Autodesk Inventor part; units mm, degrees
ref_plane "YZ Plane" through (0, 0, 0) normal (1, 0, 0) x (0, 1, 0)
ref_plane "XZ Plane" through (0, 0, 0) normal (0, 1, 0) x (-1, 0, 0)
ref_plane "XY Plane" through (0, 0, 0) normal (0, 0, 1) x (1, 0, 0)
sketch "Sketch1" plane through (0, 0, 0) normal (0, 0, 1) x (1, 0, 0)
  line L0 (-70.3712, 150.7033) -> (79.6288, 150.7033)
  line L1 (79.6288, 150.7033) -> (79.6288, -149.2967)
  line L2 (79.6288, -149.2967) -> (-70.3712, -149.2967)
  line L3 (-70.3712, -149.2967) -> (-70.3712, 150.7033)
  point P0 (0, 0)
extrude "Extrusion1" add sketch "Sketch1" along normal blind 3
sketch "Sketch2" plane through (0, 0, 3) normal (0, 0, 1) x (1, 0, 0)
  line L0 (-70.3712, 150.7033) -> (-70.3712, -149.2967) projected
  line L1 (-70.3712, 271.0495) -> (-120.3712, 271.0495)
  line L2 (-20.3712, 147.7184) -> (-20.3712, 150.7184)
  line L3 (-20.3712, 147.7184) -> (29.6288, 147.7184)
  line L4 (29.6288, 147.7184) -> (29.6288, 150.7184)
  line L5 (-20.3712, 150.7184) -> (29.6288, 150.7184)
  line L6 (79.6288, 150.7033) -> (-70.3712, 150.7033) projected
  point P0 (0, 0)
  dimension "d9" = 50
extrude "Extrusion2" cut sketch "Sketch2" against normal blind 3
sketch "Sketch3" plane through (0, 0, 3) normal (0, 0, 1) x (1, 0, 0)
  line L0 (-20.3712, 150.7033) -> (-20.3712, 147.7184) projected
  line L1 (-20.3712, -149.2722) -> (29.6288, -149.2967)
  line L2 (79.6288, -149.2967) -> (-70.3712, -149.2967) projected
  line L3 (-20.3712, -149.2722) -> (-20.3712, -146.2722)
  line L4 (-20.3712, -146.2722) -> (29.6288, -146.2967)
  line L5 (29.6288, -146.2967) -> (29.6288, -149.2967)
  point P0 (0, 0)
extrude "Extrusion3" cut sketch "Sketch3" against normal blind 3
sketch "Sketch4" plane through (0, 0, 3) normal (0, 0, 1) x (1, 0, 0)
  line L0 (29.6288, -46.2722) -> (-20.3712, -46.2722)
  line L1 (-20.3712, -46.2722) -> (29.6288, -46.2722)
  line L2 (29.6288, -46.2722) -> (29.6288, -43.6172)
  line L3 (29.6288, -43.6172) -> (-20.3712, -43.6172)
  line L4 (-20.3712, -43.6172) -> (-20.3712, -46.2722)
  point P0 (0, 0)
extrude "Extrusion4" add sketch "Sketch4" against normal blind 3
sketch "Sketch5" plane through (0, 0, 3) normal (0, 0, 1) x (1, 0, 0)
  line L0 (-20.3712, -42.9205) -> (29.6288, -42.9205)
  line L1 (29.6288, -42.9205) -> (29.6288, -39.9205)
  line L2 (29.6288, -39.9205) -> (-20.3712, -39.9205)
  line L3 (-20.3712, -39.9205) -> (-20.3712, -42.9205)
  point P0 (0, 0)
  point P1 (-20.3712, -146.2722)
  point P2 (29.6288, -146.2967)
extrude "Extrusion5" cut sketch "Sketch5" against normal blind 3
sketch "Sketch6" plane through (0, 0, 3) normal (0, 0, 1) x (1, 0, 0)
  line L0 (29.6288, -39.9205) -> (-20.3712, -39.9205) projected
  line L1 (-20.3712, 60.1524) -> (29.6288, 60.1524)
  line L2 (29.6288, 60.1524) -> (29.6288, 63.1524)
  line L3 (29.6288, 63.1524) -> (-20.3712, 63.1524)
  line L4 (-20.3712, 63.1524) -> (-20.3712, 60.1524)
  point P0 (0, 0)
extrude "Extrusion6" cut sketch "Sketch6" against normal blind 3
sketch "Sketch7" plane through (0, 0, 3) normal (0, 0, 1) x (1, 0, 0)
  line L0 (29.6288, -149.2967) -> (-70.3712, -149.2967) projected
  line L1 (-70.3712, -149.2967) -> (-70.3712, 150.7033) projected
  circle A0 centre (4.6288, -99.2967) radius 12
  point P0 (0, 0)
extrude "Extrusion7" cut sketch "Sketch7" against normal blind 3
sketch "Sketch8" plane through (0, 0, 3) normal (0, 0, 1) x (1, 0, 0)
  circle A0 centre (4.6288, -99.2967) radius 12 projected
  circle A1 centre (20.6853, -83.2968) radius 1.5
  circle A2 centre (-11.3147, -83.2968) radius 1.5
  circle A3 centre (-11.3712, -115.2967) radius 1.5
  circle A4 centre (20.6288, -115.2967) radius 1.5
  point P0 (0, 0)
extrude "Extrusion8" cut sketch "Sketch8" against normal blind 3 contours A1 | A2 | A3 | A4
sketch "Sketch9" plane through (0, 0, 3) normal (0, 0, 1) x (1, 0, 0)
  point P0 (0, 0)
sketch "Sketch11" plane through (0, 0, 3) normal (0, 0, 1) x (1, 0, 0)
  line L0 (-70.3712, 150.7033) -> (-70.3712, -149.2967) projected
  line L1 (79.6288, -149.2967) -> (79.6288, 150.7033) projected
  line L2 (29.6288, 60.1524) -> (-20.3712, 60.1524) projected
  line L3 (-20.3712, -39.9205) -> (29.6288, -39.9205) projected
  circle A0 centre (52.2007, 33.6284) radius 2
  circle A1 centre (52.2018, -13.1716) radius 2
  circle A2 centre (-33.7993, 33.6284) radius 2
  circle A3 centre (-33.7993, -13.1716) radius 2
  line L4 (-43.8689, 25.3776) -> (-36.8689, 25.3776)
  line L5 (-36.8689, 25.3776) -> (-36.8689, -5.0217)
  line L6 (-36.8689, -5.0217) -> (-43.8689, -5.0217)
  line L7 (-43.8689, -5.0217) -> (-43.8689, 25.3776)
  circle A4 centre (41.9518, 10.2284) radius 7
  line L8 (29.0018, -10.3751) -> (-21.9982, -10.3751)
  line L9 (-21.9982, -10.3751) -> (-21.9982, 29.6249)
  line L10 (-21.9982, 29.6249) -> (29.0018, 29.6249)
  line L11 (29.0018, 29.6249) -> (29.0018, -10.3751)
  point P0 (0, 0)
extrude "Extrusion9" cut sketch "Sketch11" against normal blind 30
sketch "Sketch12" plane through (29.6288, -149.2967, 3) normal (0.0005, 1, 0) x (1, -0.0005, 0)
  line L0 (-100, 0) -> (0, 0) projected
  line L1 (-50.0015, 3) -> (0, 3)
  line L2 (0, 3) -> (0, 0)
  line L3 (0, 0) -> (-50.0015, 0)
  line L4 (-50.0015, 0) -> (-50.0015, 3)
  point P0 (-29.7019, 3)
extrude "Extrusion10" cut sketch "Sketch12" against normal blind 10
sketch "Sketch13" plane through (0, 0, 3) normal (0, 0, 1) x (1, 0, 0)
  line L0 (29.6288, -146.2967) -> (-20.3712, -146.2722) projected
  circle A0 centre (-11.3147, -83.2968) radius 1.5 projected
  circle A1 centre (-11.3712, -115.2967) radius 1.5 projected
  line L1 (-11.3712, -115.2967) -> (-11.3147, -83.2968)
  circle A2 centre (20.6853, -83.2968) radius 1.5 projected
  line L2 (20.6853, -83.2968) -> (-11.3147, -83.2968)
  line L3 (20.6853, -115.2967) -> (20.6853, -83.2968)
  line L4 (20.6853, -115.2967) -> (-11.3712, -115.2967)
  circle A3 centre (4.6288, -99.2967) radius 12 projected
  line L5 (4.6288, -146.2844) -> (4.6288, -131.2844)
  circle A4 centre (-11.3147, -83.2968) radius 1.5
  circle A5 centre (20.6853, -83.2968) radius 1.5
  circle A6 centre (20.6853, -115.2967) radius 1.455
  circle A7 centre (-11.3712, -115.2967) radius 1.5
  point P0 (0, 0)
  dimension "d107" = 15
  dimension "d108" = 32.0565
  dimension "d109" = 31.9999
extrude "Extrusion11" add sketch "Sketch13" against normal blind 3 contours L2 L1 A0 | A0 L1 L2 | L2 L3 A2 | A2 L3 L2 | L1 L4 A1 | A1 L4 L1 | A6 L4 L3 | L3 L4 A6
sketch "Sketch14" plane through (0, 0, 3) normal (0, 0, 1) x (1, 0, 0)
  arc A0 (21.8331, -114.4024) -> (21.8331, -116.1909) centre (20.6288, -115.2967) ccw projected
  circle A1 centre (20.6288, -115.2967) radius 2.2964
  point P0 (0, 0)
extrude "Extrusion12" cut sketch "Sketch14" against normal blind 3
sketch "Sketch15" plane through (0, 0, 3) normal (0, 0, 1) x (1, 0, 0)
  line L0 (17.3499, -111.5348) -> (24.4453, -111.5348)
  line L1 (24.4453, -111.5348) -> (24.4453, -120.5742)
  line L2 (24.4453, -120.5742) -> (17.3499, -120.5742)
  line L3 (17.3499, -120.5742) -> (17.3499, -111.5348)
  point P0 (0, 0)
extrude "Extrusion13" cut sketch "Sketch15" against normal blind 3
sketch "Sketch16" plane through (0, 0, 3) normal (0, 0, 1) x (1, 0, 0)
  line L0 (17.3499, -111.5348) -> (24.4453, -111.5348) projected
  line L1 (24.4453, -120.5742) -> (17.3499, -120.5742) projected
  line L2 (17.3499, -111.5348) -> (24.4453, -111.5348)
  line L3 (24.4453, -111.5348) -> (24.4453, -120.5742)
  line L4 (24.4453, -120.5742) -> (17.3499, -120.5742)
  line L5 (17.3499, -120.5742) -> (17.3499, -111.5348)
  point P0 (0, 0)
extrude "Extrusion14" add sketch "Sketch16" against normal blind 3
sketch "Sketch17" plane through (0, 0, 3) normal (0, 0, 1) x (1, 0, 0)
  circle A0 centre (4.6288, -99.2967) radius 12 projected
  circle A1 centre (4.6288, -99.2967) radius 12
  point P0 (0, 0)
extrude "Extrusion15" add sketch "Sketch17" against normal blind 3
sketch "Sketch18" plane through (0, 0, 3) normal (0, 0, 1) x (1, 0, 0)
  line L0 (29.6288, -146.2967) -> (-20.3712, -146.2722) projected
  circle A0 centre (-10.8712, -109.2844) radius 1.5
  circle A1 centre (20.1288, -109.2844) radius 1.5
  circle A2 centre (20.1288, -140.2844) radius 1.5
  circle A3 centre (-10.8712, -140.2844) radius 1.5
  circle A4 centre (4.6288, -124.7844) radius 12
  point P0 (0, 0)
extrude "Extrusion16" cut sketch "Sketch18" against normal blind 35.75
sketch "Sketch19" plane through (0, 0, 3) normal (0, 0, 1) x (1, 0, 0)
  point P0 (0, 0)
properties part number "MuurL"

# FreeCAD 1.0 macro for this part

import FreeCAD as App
import Part
import Sketcher
Q = App.Units.Quantity


def add_polygon(sketch, points):
    """Adds a closed chain of lines whose ends are joined by coincident constraints."""
    first, n = sketch.GeometryCount, len(points)
    for a, b in zip(points, points[1:] + points[:1]):
        sketch.addGeometry(Part.LineSegment(App.Vector(*a, 0), App.Vector(*b, 0)), False)
    for i in range(n):
        sketch.addConstraint(Sketcher.Constraint("Coincident", first + i, 2, first + (i + 1) % n, 1))

doc = App.newDocument("Part")
body = doc.addObject("PartDesign::Body", "Body")

# Sketch on XY plane
sketch1 = body.newObject("Sketcher::SketchObject", "Sketch")
sketch1.AttachmentSupport = (doc.getObject("XY_Plane"), [""])
sketch1.MapMode = "FlatFace"
add_polygon(sketch1, [(80, 151), (-70, 151), (-70, -149), (80, -149)])  # lines 0-3
sketch1.addConstraint([
    Sketcher.Constraint("Horizontal", 0),
    Sketcher.Constraint("Vertical", 1),
    Sketcher.Constraint("Horizontal", 2),
    Sketcher.Constraint("Vertical", 3),
    Sketcher.Constraint("DistanceX", 0, 2, 0, 1, Q("150 mm")),
    Sketcher.Constraint("DistanceY", 1, 2, 1, 1, Q("300 mm")),
    Sketcher.Constraint("DistanceX", 0, 2, -1, 1, Q("70.3712 mm")),
    Sketcher.Constraint("DistanceY", -1, 1, 0, 2, Q("150.7033 mm")),
])
pad1 = body.newObject("PartDesign::Pad", "Pad")
pad1.Profile = sketch1
pad1.Length = 3

# Sketch on XY plane
sketch2 = body.newObject("Sketcher::SketchObject", "Sketch001")
sketch2.AttachmentSupport = (doc.getObject("XY_Plane"), [""])
sketch2.MapMode = "FlatFace"
sketch2.AttachmentOffset = App.Placement(App.Vector(0, 0, 3), App.Rotation())
add_polygon(sketch2, [(-20.4, 147.7), (29.6, 147.7), (29.6, 150.7), (-20.4, 150.7)])  # lines 0-3
sketch2.addConstraint([
    Sketcher.Constraint("Horizontal", 0),
    Sketcher.Constraint("Vertical", 1),
    Sketcher.Constraint("Horizontal", 2),
    Sketcher.Constraint("Vertical", 3),
    Sketcher.Constraint("DistanceX", 0, 1, 0, 2, Q("50 mm")),
    Sketcher.Constraint("DistanceY", 1, 1, 1, 2, Q("3 mm")),
    Sketcher.Constraint("DistanceX", -1, 1, 0, 2, Q("29.6288 mm")),
    Sketcher.Constraint("DistanceY", -1, 1, 0, 2, Q("147.7184 mm")),
])
pocket1 = body.newObject("PartDesign::Pocket", "Pocket")
pocket1.Profile = sketch2
pocket1.Length = 3

# Sketch on XY plane
sketch3 = body.newObject("Sketcher::SketchObject", "Sketch002")
sketch3.AttachmentSupport = (doc.getObject("XY_Plane"), [""])
sketch3.MapMode = "FlatFace"
sketch3.AttachmentOffset = App.Placement(App.Vector(0, 0, 3), App.Rotation())
add_polygon(sketch3, [(-20.4, -146.3), (-20.4, -149.3), (29.6, -149.3), (29.6, -146.3)])  # lines 0-3
sketch3.addConstraint([
    Sketcher.Constraint("Vertical", 0),
    Sketcher.Constraint("Vertical", 2),
    Sketcher.Constraint("Parallel", 1, 3),
    Sketcher.Constraint("DistanceY", 0, 2, 0, 1, Q("3 mm")),
    Sketcher.Constraint("Distance", 1, Q("50 mm")),
    Sketcher.Constraint("DistanceX", 0, 2, -1, 1, Q("20.3712 mm")),
    Sketcher.Constraint("DistanceY", 0, 2, -1, 1, Q("149.2722 mm")),
    Sketcher.Constraint("DistanceY", 1, 2, -1, 1, Q("149.2967 mm")),
])
pocket2 = body.newObject("PartDesign::Pocket", "Pocket001")
pocket2.Profile = sketch3
pocket2.Length = 3

# Sketch on XY plane
sketch4 = body.newObject("Sketcher::SketchObject", "Sketch003")
sketch4.AttachmentSupport = (doc.getObject("XY_Plane"), [""])
sketch4.MapMode = "FlatFace"
sketch4.AttachmentOffset = App.Placement(App.Vector(0, 0, 3), App.Rotation())
add_polygon(sketch4, [(-20.4, -46.3), (29.6, -46.3), (29.6, -43.6), (-20.4, -43.6)])  # lines 0-3
sketch4.addConstraint([
    Sketcher.Constraint("Horizontal", 0),
    Sketcher.Constraint("Vertical", 1),
    Sketcher.Constraint("Horizontal", 2),
    Sketcher.Constraint("Vertical", 3),
    Sketcher.Constraint("DistanceX", 0, 1, 0, 2, Q("50 mm")),
    Sketcher.Constraint("DistanceY", 1, 1, 1, 2, Q("2.655 mm")),
    Sketcher.Constraint("DistanceX", -1, 1, 0, 2, Q("29.6288 mm")),
    Sketcher.Constraint("DistanceY", 0, 2, -1, 1, Q("46.2722 mm")),
])
pad2 = body.newObject("PartDesign::Pad", "Pad001")
pad2.Profile = sketch4
pad2.Length = 3
pad2.Reversed = True

# Sketch on XY plane
sketch5 = body.newObject("Sketcher::SketchObject", "Sketch004")
sketch5.AttachmentSupport = (doc.getObject("XY_Plane"), [""])
sketch5.MapMode = "FlatFace"
sketch5.AttachmentOffset = App.Placement(App.Vector(0, 0, 3), App.Rotation())
add_polygon(sketch5, [(-20.4, -39.9), (-20.4, -42.9), (29.6, -42.9), (29.6, -39.9)])  # lines 0-3
sketch5.addConstraint([
    Sketcher.Constraint("Vertical", 0),
    Sketcher.Constraint("Horizontal", 1),
    Sketcher.Constraint("Vertical", 2),
    Sketcher.Constraint("Horizontal", 3),
    Sketcher.Constraint("DistanceX", 1, 1, 1, 2, Q("50 mm")),
    Sketcher.Constraint("DistanceY", 0, 2, 0, 1, Q("3 mm")),
    Sketcher.Constraint("DistanceX", 0, 2, -1, 1, Q("20.3712 mm")),
    Sketcher.Constraint("DistanceY", 0, 2, -1, 1, Q("42.9205 mm")),
])
pocket3 = body.newObject("PartDesign::Pocket", "Pocket002")
pocket3.Profile = sketch5
pocket3.Length = 3

# Sketch on XY plane
sketch6 = body.newObject("Sketcher::SketchObject", "Sketch005")
sketch6.AttachmentSupport = (doc.getObject("XY_Plane"), [""])
sketch6.MapMode = "FlatFace"
sketch6.AttachmentOffset = App.Placement(App.Vector(0, 0, 3), App.Rotation())
add_polygon(sketch6, [(-20.4, 63.2), (-20.4, 60.2), (29.6, 60.2), (29.6, 63.2)])  # lines 0-3
sketch6.addConstraint([
    Sketcher.Constraint("Vertical", 0),
    Sketcher.Constraint("Horizontal", 1),
    Sketcher.Constraint("Vertical", 2),
    Sketcher.Constraint("Horizontal", 3),
    Sketcher.Constraint("DistanceX", 1, 1, 1, 2, Q("50 mm")),
    Sketcher.Constraint("DistanceY", 0, 2, 0, 1, Q("3 mm")),
    Sketcher.Constraint("DistanceX", 0, 2, -1, 1, Q("20.3712 mm")),
    Sketcher.Constraint("DistanceY", -1, 1, 0, 2, Q("60.1524 mm")),
])
pocket4 = body.newObject("PartDesign::Pocket", "Pocket003")
pocket4.Profile = sketch6
pocket4.Length = 3

# Sketch on XY plane
sketch7 = body.newObject("Sketcher::SketchObject", "Sketch006")
sketch7.AttachmentSupport = (doc.getObject("XY_Plane"), [""])
sketch7.MapMode = "FlatFace"
sketch7.AttachmentOffset = App.Placement(App.Vector(0, 0, 3), App.Rotation())
sketch7.addGeometry(Part.Circle(App.Vector(5, -99, 0), App.Vector(0, 0, 1), 12), False)
sketch7.addConstraint([
    Sketcher.Constraint("Diameter", 0, Q("24 mm")),
    Sketcher.Constraint("DistanceX", -1, 1, 0, 3, Q("4.6288 mm")),
    Sketcher.Constraint("DistanceY", 0, 3, -1, 1, Q("99.2967 mm")),
])
pocket5 = body.newObject("PartDesign::Pocket", "Pocket004")
pocket5.Profile = sketch7
pocket5.Length = 3

# Sketch on XY plane
sketch8 = body.newObject("Sketcher::SketchObject", "Sketch007")
sketch8.AttachmentSupport = (doc.getObject("XY_Plane"), [""])
sketch8.MapMode = "FlatFace"
sketch8.AttachmentOffset = App.Placement(App.Vector(0, 0, 3), App.Rotation())
sketch8.addGeometry([
    Part.Circle(App.Vector(20.7, -83.3, 0), App.Vector(0, 0, 1), 1.5),
    Part.Circle(App.Vector(-11.3, -83.3, 0), App.Vector(0, 0, 1), 1.5),
    Part.Circle(App.Vector(-11.4, -115.3, 0), App.Vector(0, 0, 1), 1.5),
    Part.Circle(App.Vector(20.6, -115.3, 0), App.Vector(0, 0, 1), 1.5),
], False)
sketch8.addConstraint([
    Sketcher.Constraint("Equal", 0, 1),
    Sketcher.Constraint("Equal", 1, 2),
    Sketcher.Constraint("Equal", 2, 3),
    Sketcher.Constraint("Horizontal", 0, 3, 1, 3),
    Sketcher.Constraint("Horizontal", 2, 3, 3, 3),
    Sketcher.Constraint("Diameter", 0, Q("3 mm")),
    Sketcher.Constraint("DistanceX", 1, 3, 0, 3, Q("32 mm")),
    Sketcher.Constraint("DistanceY", 2, 3, 1, 3, Q("32 mm")),
    Sketcher.Constraint("DistanceX", 2, 3, 3, 3, Q("32 mm")),
    Sketcher.Constraint("DistanceX", -1, 1, 0, 3, Q("20.6853 mm")),
    Sketcher.Constraint("DistanceY", 0, 3, -1, 1, Q("83.2968 mm")),
    Sketcher.Constraint("DistanceX", 2, 3, -1, 1, Q("11.3712 mm")),
])
pocket6 = body.newObject("PartDesign::Pocket", "Pocket005")
pocket6.Profile = sketch8
pocket6.Length = 3

# Sketch on XY plane
sketch9 = body.newObject("Sketcher::SketchObject", "Sketch008")
sketch9.AttachmentSupport = (doc.getObject("XY_Plane"), [""])
sketch9.MapMode = "FlatFace"
sketch9.AttachmentOffset = App.Placement(App.Vector(0, 0, 3), App.Rotation())
sketch9.addGeometry(Part.Circle(App.Vector(52.2, 33.6, 0), App.Vector(0, 0, 1), 2), False)  # 0
sketch9.addGeometry(Part.Circle(App.Vector(52.2, -13.2, 0), App.Vector(0, 0, 1), 2), False)  # 1
sketch9.addGeometry(Part.Circle(App.Vector(-33.8, 33.6, 0), App.Vector(0, 0, 1), 2), False)  # 2
sketch9.addGeometry(Part.Circle(App.Vector(-33.8, -13.2, 0), App.Vector(0, 0, 1), 2), False)  # 3
add_polygon(sketch9, [(-36.9, 25.4), (-43.9, 25.4), (-43.9, -5), (-36.9, -5)])  # lines 4-7
sketch9.addGeometry(Part.Circle(App.Vector(42, 10.2, 0), App.Vector(0, 0, 1), 7), False)  # 8
add_polygon(sketch9, [(-22, -10.4), (29, -10.4), (29, 29.6), (-22, 29.6)])  # lines 9-12
sketch9.addConstraint([
    Sketcher.Constraint("Horizontal", 4),
    Sketcher.Constraint("Vertical", 5),
    Sketcher.Constraint("Horizontal", 6),
    Sketcher.Constraint("Vertical", 7),
    Sketcher.Constraint("Horizontal", 9),
    Sketcher.Constraint("Vertical", 10),
    Sketcher.Constraint("Horizontal", 11),
    Sketcher.Constraint("Vertical", 12),
    Sketcher.Constraint("Equal", 0, 1),
    Sketcher.Constraint("Equal", 1, 2),
    Sketcher.Constraint("Equal", 2, 3),
    Sketcher.Constraint("Horizontal", 0, 3, 2, 3),
    Sketcher.Constraint("Horizontal", 1, 3, 3, 3),
    Sketcher.Constraint("Vertical", 2, 3, 3, 3),
    Sketcher.Constraint("Diameter", 0, Q("4 mm")),
    Sketcher.Constraint("Diameter", 8, Q("14 mm")),
    Sketcher.Constraint("DistanceX", 4, 2, 4, 1, Q("7 mm")),
    Sketcher.Constraint("DistanceX", 9, 1, 9, 2, Q("51 mm")),
    Sketcher.Constraint("DistanceY", 10, 1, 10, 2, Q("40 mm")),
    Sketcher.Constraint("DistanceX", 2, 3, 0, 3, Q("86 mm")),
    Sketcher.Constraint("DistanceY", 1, 3, 0, 3, Q("46.8 mm")),
    Sketcher.Constraint("DistanceY", 8, 3, 0, 3, Q("23.4 mm")),
    Sketcher.Constraint("DistanceX", 9, 2, 1, 3, Q("23.2 mm")),
    Sketcher.Constraint("DistanceX", 8, 3, 1, 3, Q("10.25 mm")),
    Sketcher.Constraint("DistanceY", 3, 3, 5, 2, Q("8.15 mm")),
    Sketcher.Constraint("DistanceY", 5, 2, 5, 1, Q("30.3993 mm")),
    Sketcher.Constraint("DistanceX", 4, 2, -1, 1, Q("43.869 mm")),
    Sketcher.Constraint("DistanceY", 9, 2, -1, 1, Q("10.375 mm")),
    Sketcher.Constraint("DistanceX", 0, 3, 1, 3, Q("0.001 mm")),
    Sketcher.Constraint("DistanceX", -1, 1, 0, 3, Q("52.2007 mm")),
    Sketcher.Constraint("DistanceY", -1, 1, 0, 3, Q("33.6284 mm")),
])
pocket7 = body.newObject("PartDesign::Pocket", "Pocket006")
pocket7.Profile = sketch9
pocket7.Length = 30

# Sketch on an angled plane
sketch10 = body.newObject("Sketcher::SketchObject", "Sketch009")
sketch10.Placement = App.Placement(App.Vector(29.6288, -149.2967, 3), App.Rotation(App.Vector(0.999999875, -0.0005, 0), App.Vector(0, 0, -1), App.Vector(0.0005, 0.999999875, 0), "ZXY"))
add_polygon(sketch10, [(-50, 3), (-50, 0), (0, 0), (0, 3)])  # lines 0-3
sketch10.addConstraint([
    Sketcher.Constraint("Vertical", 0),
    Sketcher.Constraint("Horizontal", 1),
    Sketcher.Constraint("Vertical", 2),
    Sketcher.Constraint("Horizontal", 3),
    Sketcher.Constraint("Coincident", 1, 2, -1, 1),
    Sketcher.Constraint("DistanceY", 0, 2, 0, 1, Q("3 mm")),
    Sketcher.Constraint("DistanceX", 1, 1, 1, 2, Q("50.0015 mm")),
])
pocket8 = body.newObject("PartDesign::Pocket", "Pocket007")
pocket8.Profile = sketch10
pocket8.Length = 10

# Sketch on XY plane
sketch11 = body.newObject("Sketcher::SketchObject", "Sketch010")
sketch11.AttachmentSupport = (doc.getObject("XY_Plane"), [""])
sketch11.MapMode = "FlatFace"
sketch11.AttachmentOffset = App.Placement(App.Vector(0, 0, 3), App.Rotation())
sketch11.addGeometry([
    Part.Circle(App.Vector(-11.3, -83.3, 0), App.Vector(0, 0, 1), 1.5),
    Part.Circle(App.Vector(20.7, -83.3, 0), App.Vector(0, 0, 1), 1.5),
    Part.Circle(App.Vector(-11.4, -115.3, 0), App.Vector(0, 0, 1), 1.5),
    Part.Circle(App.Vector(20.7, -115.3, 0), App.Vector(0, 0, 1), 1.5),
], False)
sketch11.addConstraint([
    Sketcher.Constraint("Equal", 0, 1),
    Sketcher.Constraint("Equal", 1, 2),
    Sketcher.Constraint("Horizontal", 0, 3, 1, 3),
    Sketcher.Constraint("Horizontal", 2, 3, 3, 3),
    Sketcher.Constraint("Vertical", 1, 3, 3, 3),
    Sketcher.Constraint("Diameter", 0, Q("3 mm")),
    Sketcher.Constraint("DistanceX", 0, 3, 1, 3, Q("32 mm")),
    Sketcher.Constraint("DistanceY", 2, 3, 0, 3, Q("32 mm")),
    Sketcher.Constraint("Diameter", 3, Q("2.91 mm")),
    Sketcher.Constraint("DistanceX", 2, 3, 1, 3, Q("32.0565 mm")),
    Sketcher.Constraint("DistanceX", 0, 3, -1, 1, Q("11.3147 mm")),
    Sketcher.Constraint("DistanceY", 0, 3, -1, 1, Q("83.2968 mm")),
])
pad3 = body.newObject("PartDesign::Pad", "Pad002")
pad3.Profile = sketch11
pad3.Length = 3
pad3.Reversed = True

# Sketch on XY plane
sketch12 = body.newObject("Sketcher::SketchObject", "Sketch011")
sketch12.AttachmentSupport = (doc.getObject("XY_Plane"), [""])
sketch12.MapMode = "FlatFace"
sketch12.AttachmentOffset = App.Placement(App.Vector(0, 0, 3), App.Rotation())
sketch12.addGeometry(Part.Circle(App.Vector(20.6, -115.3, 0), App.Vector(0, 0, 1), 2.3), False)
sketch12.addConstraint([
    Sketcher.Constraint("Diameter", 0, Q("4.5928 mm")),
    Sketcher.Constraint("DistanceX", -1, 1, 0, 3, Q("20.6288 mm")),
    Sketcher.Constraint("DistanceY", 0, 3, -1, 1, Q("115.2967 mm")),
])
pocket9 = body.newObject("PartDesign::Pocket", "Pocket008")
pocket9.Profile = sketch12
pocket9.Length = 3

# Sketch on XY plane
sketch13 = body.newObject("Sketcher::SketchObject", "Sketch012")
sketch13.AttachmentSupport = (doc.getObject("XY_Plane"), [""])
sketch13.MapMode = "FlatFace"
sketch13.AttachmentOffset = App.Placement(App.Vector(0, 0, 3), App.Rotation())
add_polygon(sketch13, [(24, -112), (17, -112), (17, -121), (24, -121)])  # lines 0-3
sketch13.addConstraint([
    Sketcher.Constraint("Horizontal", 0),
    Sketcher.Constraint("Vertical", 1),
    Sketcher.Constraint("Horizontal", 2),
    Sketcher.Constraint("Vertical", 3),
    Sketcher.Constraint("DistanceX", -1, 1, 0, 2, Q("17.35 mm")),
    Sketcher.Constraint("DistanceX", 0, 2, 0, 1, Q("7.0954 mm")),
    Sketcher.Constraint("DistanceY", 1, 2, 1, 1, Q("9.0394 mm")),
    Sketcher.Constraint("DistanceY", 0, 2, -1, 1, Q("111.5348 mm")),
])
pocket10 = body.newObject("PartDesign::Pocket", "Pocket009")
pocket10.Profile = sketch13
pocket10.Length = 3

# Sketch on XY plane
sketch14 = body.newObject("Sketcher::SketchObject", "Sketch013")
sketch14.AttachmentSupport = (doc.getObject("XY_Plane"), [""])
sketch14.MapMode = "FlatFace"
sketch14.AttachmentOffset = App.Placement(App.Vector(0, 0, 3), App.Rotation())
add_polygon(sketch14, [(24, -112), (17, -112), (17, -121), (24, -121)])  # lines 0-3
sketch14.addConstraint([
    Sketcher.Constraint("Horizontal", 0),
    Sketcher.Constraint("Vertical", 1),
    Sketcher.Constraint("Horizontal", 2),
    Sketcher.Constraint("Vertical", 3),
    Sketcher.Constraint("DistanceX", -1, 1, 0, 2, Q("17.35 mm")),
    Sketcher.Constraint("DistanceX", 0, 2, 0, 1, Q("7.0954 mm")),
    Sketcher.Constraint("DistanceY", 1, 2, 1, 1, Q("9.0394 mm")),
    Sketcher.Constraint("DistanceY", 0, 2, -1, 1, Q("111.5348 mm")),
])
pad4 = body.newObject("PartDesign::Pad", "Pad003")
pad4.Profile = sketch14
pad4.Length = 3
pad4.Reversed = True

# Sketch on XY plane
sketch15 = body.newObject("Sketcher::SketchObject", "Sketch014")
sketch15.AttachmentSupport = (doc.getObject("XY_Plane"), [""])
sketch15.MapMode = "FlatFace"
sketch15.AttachmentOffset = App.Placement(App.Vector(0, 0, 3), App.Rotation())
sketch15.addGeometry(Part.Circle(App.Vector(5, -99, 0), App.Vector(0, 0, 1), 12), False)
sketch15.addConstraint([
    Sketcher.Constraint("Diameter", 0, Q("24 mm")),
    Sketcher.Constraint("DistanceX", -1, 1, 0, 3, Q("4.6288 mm")),
    Sketcher.Constraint("DistanceY", 0, 3, -1, 1, Q("99.2967 mm")),
])
pad5 = body.newObject("PartDesign::Pad", "Pad004")
pad5.Profile = sketch15
pad5.Length = 3
pad5.Reversed = True

# Sketch on XY plane
sketch16 = body.newObject("Sketcher::SketchObject", "Sketch015")
sketch16.AttachmentSupport = (doc.getObject("XY_Plane"), [""])
sketch16.MapMode = "FlatFace"
sketch16.AttachmentOffset = App.Placement(App.Vector(0, 0, 3), App.Rotation())
sketch16.addGeometry([
    Part.Circle(App.Vector(-10.9, -109.3, 0), App.Vector(0, 0, 1), 1.5),  # 0
    Part.Circle(App.Vector(20.1, -109.3, 0), App.Vector(0, 0, 1), 1.5),  # 1
    Part.Circle(App.Vector(20.1, -140.3, 0), App.Vector(0, 0, 1), 1.5),  # 2
    Part.Circle(App.Vector(-10.9, -140.3, 0), App.Vector(0, 0, 1), 1.5),  # 3
    Part.Circle(App.Vector(4.6, -124.8, 0), App.Vector(0, 0, 1), 12),  # 4
], False)
sketch16.addConstraint([
    Sketcher.Constraint("Equal", 0, 1),
    Sketcher.Constraint("Equal", 1, 2),
    Sketcher.Constraint("Equal", 2, 3),
    Sketcher.Constraint("Horizontal", 0, 3, 1, 3),
    Sketcher.Constraint("Horizontal", 2, 3, 3, 3),
    Sketcher.Constraint("Vertical", 1, 3, 2, 3),
    Sketcher.Constraint("Vertical", 0, 3, 3, 3),
    Sketcher.Constraint("Diameter", 0, Q("3 mm")),
    Sketcher.Constraint("Diameter", 4, Q("24 mm")),
    Sketcher.Constraint("DistanceX", 0, 3, 1, 3, Q("31 mm")),
    Sketcher.Constraint("DistanceY", 2, 3, 1, 3, Q("31 mm")),
    Sketcher.Constraint("DistanceX", 0, 3, 4, 3, Q("15.5 mm")),
    Sketcher.Constraint("DistanceY", 4, 3, 0, 3, Q("15.5 mm")),
    Sketcher.Constraint("DistanceX", 0, 3, -1, 1, Q("10.8712 mm")),
    Sketcher.Constraint("DistanceY", 0, 3, -1, 1, Q("109.2844 mm")),
])
pocket11 = body.newObject("PartDesign::Pocket", "Pocket010")
pocket11.Profile = sketch16
pocket11.Length = 35.75

doc.recompute()
